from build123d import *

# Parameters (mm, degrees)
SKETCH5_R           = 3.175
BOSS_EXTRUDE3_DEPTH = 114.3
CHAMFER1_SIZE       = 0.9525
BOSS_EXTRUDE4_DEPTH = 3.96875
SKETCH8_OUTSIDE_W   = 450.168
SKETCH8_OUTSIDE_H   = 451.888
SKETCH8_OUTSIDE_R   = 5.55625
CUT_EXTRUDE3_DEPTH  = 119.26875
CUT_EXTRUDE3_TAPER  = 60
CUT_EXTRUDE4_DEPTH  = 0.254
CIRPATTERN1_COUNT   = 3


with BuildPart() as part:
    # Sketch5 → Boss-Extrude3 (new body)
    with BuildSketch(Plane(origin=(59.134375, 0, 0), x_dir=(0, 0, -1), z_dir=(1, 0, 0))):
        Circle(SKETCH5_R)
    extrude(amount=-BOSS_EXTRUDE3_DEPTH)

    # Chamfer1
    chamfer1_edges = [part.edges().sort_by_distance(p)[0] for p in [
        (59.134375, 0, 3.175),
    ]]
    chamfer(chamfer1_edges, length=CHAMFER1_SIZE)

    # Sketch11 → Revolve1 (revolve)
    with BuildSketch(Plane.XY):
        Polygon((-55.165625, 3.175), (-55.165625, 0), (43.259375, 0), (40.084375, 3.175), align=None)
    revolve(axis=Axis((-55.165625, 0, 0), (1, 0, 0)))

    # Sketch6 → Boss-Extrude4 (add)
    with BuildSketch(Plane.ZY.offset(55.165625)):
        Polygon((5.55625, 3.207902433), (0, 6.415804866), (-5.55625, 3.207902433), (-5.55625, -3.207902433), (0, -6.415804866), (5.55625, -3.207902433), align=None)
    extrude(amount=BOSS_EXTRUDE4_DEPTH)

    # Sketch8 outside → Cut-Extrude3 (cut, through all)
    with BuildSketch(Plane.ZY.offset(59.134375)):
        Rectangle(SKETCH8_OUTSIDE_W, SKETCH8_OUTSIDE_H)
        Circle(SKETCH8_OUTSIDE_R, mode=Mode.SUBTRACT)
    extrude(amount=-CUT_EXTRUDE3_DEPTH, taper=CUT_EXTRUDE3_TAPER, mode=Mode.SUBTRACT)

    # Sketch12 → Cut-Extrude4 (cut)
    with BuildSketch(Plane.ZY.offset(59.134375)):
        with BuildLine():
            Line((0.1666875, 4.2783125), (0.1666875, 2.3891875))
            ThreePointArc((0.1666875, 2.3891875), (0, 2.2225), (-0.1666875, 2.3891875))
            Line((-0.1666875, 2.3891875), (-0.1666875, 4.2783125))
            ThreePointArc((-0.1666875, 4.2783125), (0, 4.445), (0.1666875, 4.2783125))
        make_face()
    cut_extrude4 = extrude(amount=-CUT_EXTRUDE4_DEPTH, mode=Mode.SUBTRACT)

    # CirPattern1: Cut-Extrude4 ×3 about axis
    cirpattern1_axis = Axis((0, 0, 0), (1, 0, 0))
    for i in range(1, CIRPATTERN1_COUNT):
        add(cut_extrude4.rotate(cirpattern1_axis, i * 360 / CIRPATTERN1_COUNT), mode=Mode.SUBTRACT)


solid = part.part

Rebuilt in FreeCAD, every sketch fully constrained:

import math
import FreeCAD as App
import Part
import Sketcher
Q = App.Units.Quantity


def edges_at(feature, points):
    """Names of the edges that pass closest to the given points."""
    edges = feature.Shape.Edges
    near = lambda p: min(range(len(edges)), key=lambda i: edges[i].distToShape(Part.Vertex(*p))[0])
    return sorted({f"Edge{near(p) + 1}" for p in points})

doc = App.newDocument("Part")
body = doc.addObject("PartDesign::Body", "Body")

sketch1 = body.newObject("Sketcher::SketchObject", "Sketch")
sketch1.AttachmentSupport = (doc.getObject("YZ_Plane"), [""])
sketch1.MapMode = "FlatFace"
sketch1.AttachmentOffset = App.Placement(App.Vector(0, 0, 2.328125 * 25.4), App.Rotation())
sketch1.addGeometry(Part.Circle(App.Vector(0, 0, 0), App.Vector(0, 0, 1), 3.2), False)
sketch1.addConstraint([
    Sketcher.Constraint("Coincident", 0, 3, -1, 1),
    Sketcher.Constraint("Diameter", 0, Q("0.25 in")),
])
pad1 = body.newObject("PartDesign::Pad", "Pad")
pad1.Profile = sketch1
pad1.Length = Q("4.5 in")
pad1.Reversed = True
doc.recompute()

chamfer = body.newObject("PartDesign::Chamfer", "Chamfer")
chamfer.Base = (pad1, edges_at(pad1, [(59.134, 0, 3.175)]))
chamfer.Size = Q("0.0375 in")

sketch2 = body.newObject("Sketcher::SketchObject", "Sketch001")
sketch2.AttachmentSupport = (doc.getObject("XY_Plane"), [""])
sketch2.MapMode = "FlatFace"
sketch2.addGeometry([
    Part.LineSegment(App.Vector(-55.2, 3.2, 0), App.Vector(-55.2, 0, 0)),
    Part.LineSegment(App.Vector(-55.2, 0, 0), App.Vector(43.3, 0, 0)),
    Part.LineSegment(App.Vector(43.3, 0, 0), App.Vector(40.1, 3.2, 0)),
    Part.LineSegment(App.Vector(40.1, 3.2, 0), App.Vector(-55.2, 3.2, 0)),
], False)
sketch2.addConstraint([
    Sketcher.Constraint("Coincident", 0, 2, 1, 1),
    Sketcher.Constraint("Coincident", 1, 2, 2, 1),
    Sketcher.Constraint("Coincident", 2, 2, 3, 1),
    Sketcher.Constraint("Coincident", 3, 2, 0, 1),
    Sketcher.Constraint("Vertical", 0),
    Sketcher.Constraint("Horizontal", 1),
    Sketcher.Constraint("Horizontal", 3),
    Sketcher.Constraint("PointOnObject", 0, 2, -1),
    Sketcher.Constraint("Angle", 2, Q("135 deg")),
    Sketcher.Constraint("DistanceX", 3, 2, 3, 1, Q("3.75 in")),
    Sketcher.Constraint("DistanceX", 1, 1, 1, 2, Q("3.875 in")),
    Sketcher.Constraint("DistanceX", 0, 2, -1, 1, Q("2.171875 in")),
])
revolution = body.newObject("PartDesign::Revolution", "Revolution")
revolution.Profile = sketch2
revolution.ReferenceAxis = (sketch2, ["H_Axis"])
revolution.Angle = 360

sketch3 = body.newObject("Sketcher::SketchObject", "Sketch002")
sketch3.AttachmentSupport = (doc.getObject("YZ_Plane"), [""])
sketch3.MapMode = "FlatFace"
sketch3.AttachmentOffset = App.Placement(App.Vector(0, 0, -2.171875 * 25.4), App.Rotation())
sketch3.addGeometry([
    Part.LineSegment(App.Vector(3, 6, 0), App.Vector(6, 0, 0)),
    Part.LineSegment(App.Vector(6, 0, 0), App.Vector(3, -6, 0)),
    Part.LineSegment(App.Vector(3, -6, 0), App.Vector(-3, -6, 0)),
    Part.LineSegment(App.Vector(-3, -6, 0), App.Vector(-6, 0, 0)),
    Part.LineSegment(App.Vector(-6, 0, 0), App.Vector(-3, 6, 0)),
    Part.LineSegment(App.Vector(-3, 6, 0), App.Vector(3, 6, 0)),
], False)
sketch3.addConstraint([
    Sketcher.Constraint("Coincident", 0, 2, 1, 1),
    Sketcher.Constraint("Coincident", 1, 2, 2, 1),
    Sketcher.Constraint("Coincident", 2, 2, 3, 1),
    Sketcher.Constraint("Coincident", 3, 2, 4, 1),
    Sketcher.Constraint("Coincident", 4, 2, 5, 1),
    Sketcher.Constraint("Coincident", 5, 2, 0, 1),
    Sketcher.Constraint("Horizontal", 2),
    Sketcher.Constraint("Horizontal", 5),
    Sketcher.Constraint("Symmetric", 0, 2, 3, 2, -1, 1),
    Sketcher.Constraint("Symmetric", 1, 2, 4, 2, -1, 1),
    Sketcher.Constraint("PointOnObject", 0, 2, -1),
    Sketcher.Constraint("Parallel", 0, 3),
    Sketcher.Constraint("Vertical", 2, 2, 4, 2),
    Sketcher.Constraint("Angle", 0, Q("-60 deg")),
    Sketcher.Constraint("DistanceY", 1, 2, -1, 1, Q("0.21875 in")),
    Sketcher.Constraint("DistanceX", 2, 2, 2, 1, Q("6.415805 mm")),
])
pad2 = body.newObject("PartDesign::Pad", "Pad001")
pad2.Profile = sketch3
pad2.Length = Q("0.15625 in")
pad2.Reversed = True

sketch4 = body.newObject("Sketcher::SketchObject", "Sketch003")
sketch4.AttachmentSupport = (doc.getObject("YZ_Plane"), [""])
sketch4.MapMode = "FlatFace"
sketch4.AttachmentOffset = App.Placement(App.Vector(0, 0, -2.328125 * 25.4), App.Rotation())
sketch4.addGeometry([
    Part.LineSegment(App.Vector(226, -225, 0), App.Vector(-226, -225, 0)),
    Part.LineSegment(App.Vector(-226, -225, 0), App.Vector(-226, 225, 0)),
    Part.LineSegment(App.Vector(-226, 225, 0), App.Vector(226, 225, 0)),
    Part.LineSegment(App.Vector(226, 225, 0), App.Vector(226, -225, 0)),
    Part.Circle(App.Vector(0, 0, 0), App.Vector(0, 0, 1), 6),
], False)
sketch4.addConstraint([
    Sketcher.Constraint("Coincident", 0, 2, 1, 1),
    Sketcher.Constraint("Coincident", 1, 2, 2, 1),
    Sketcher.Constraint("Coincident", 2, 2, 3, 1),
    Sketcher.Constraint("Coincident", 3, 2, 0, 1),
    Sketcher.Constraint("Horizontal", 0),
    Sketcher.Constraint("Vertical", 1),
    Sketcher.Constraint("Horizontal", 2),
    Sketcher.Constraint("Vertical", 3),
    Sketcher.Constraint("Coincident", 4, 3, -1, 1),
    Sketcher.Constraint("Symmetric", 0, 2, 2, 2, -1, 1),
    Sketcher.Constraint("Diameter", 4, Q("0.4375 in")),
    Sketcher.Constraint("DistanceX", 0, 2, 0, 1, Q("451.888 mm")),
    Sketcher.Constraint("DistanceY", 1, 1, 1, 2, Q("450.168 mm")),
])
pocket1 = body.newObject("PartDesign::Pocket", "Pocket")
pocket1.Profile = sketch4
pocket1.Length = 119.26875
pocket1.Reversed = True
pocket1.TaperAngle = 60

sketch5 = body.newObject("Sketcher::SketchObject", "Sketch004")
sketch5.AttachmentSupport = (doc.getObject("YZ_Plane"), [""])
sketch5.MapMode = "FlatFace"
sketch5.AttachmentOffset = App.Placement(App.Vector(0, 0, -2.328125 * 25.4), App.Rotation())
sketch5.addGeometry([
    Part.LineSegment(App.Vector(2.39, 0.17, 0), App.Vector(4.28, 0.17, 0)),
    Part.ArcOfCircle(Part.Circle(App.Vector(4.28, 0, 0), App.Vector(0, 0, 1), 0.17), math.radians(-90), math.radians(90)),
    Part.LineSegment(App.Vector(4.28, -0.17, 0), App.Vector(2.39, -0.17, 0)),
    Part.ArcOfCircle(Part.Circle(App.Vector(2.39, 0, 0), App.Vector(0, 0, 1), 0.17), math.radians(90), math.radians(270)),
], False)
sketch5.addConstraint([
    Sketcher.Constraint("Tangent", 0, 2, 1, 2),
    Sketcher.Constraint("Tangent", 1, 1, 2, 1),
    Sketcher.Constraint("Tangent", 2, 2, 3, 2),
    Sketcher.Constraint("Tangent", 3, 1, 0, 1),
    Sketcher.Constraint("Horizontal", 0),
    Sketcher.Constraint("Horizontal", 2),
    Sketcher.Constraint("PointOnObject", 1, 3, -1),
    Sketcher.Constraint("Radius", 1, Q("0.166687 mm")),
    Sketcher.Constraint("DistanceX", 0, 1, 0, 2, Q("1.889125 mm")),
    Sketcher.Constraint("DistanceX", -1, 1, 1, 3, Q("4.278313 mm")),
])
pocket2 = body.newObject("PartDesign::Pocket", "Pocket001")
pocket2.Profile = sketch5
pocket2.Length = Q("0.01 in")
pocket2.Reversed = True
doc.recompute()

polarpattern = body.newObject("PartDesign::PolarPattern", "PolarPattern")
polarpattern.Originals = [pocket2]
polarpattern.Axis = (doc.getObject("X_Axis"), [""])
polarpattern.Angle = 360
polarpattern.Occurrences = 3
body.Tip = polarpattern

doc.recompute()
